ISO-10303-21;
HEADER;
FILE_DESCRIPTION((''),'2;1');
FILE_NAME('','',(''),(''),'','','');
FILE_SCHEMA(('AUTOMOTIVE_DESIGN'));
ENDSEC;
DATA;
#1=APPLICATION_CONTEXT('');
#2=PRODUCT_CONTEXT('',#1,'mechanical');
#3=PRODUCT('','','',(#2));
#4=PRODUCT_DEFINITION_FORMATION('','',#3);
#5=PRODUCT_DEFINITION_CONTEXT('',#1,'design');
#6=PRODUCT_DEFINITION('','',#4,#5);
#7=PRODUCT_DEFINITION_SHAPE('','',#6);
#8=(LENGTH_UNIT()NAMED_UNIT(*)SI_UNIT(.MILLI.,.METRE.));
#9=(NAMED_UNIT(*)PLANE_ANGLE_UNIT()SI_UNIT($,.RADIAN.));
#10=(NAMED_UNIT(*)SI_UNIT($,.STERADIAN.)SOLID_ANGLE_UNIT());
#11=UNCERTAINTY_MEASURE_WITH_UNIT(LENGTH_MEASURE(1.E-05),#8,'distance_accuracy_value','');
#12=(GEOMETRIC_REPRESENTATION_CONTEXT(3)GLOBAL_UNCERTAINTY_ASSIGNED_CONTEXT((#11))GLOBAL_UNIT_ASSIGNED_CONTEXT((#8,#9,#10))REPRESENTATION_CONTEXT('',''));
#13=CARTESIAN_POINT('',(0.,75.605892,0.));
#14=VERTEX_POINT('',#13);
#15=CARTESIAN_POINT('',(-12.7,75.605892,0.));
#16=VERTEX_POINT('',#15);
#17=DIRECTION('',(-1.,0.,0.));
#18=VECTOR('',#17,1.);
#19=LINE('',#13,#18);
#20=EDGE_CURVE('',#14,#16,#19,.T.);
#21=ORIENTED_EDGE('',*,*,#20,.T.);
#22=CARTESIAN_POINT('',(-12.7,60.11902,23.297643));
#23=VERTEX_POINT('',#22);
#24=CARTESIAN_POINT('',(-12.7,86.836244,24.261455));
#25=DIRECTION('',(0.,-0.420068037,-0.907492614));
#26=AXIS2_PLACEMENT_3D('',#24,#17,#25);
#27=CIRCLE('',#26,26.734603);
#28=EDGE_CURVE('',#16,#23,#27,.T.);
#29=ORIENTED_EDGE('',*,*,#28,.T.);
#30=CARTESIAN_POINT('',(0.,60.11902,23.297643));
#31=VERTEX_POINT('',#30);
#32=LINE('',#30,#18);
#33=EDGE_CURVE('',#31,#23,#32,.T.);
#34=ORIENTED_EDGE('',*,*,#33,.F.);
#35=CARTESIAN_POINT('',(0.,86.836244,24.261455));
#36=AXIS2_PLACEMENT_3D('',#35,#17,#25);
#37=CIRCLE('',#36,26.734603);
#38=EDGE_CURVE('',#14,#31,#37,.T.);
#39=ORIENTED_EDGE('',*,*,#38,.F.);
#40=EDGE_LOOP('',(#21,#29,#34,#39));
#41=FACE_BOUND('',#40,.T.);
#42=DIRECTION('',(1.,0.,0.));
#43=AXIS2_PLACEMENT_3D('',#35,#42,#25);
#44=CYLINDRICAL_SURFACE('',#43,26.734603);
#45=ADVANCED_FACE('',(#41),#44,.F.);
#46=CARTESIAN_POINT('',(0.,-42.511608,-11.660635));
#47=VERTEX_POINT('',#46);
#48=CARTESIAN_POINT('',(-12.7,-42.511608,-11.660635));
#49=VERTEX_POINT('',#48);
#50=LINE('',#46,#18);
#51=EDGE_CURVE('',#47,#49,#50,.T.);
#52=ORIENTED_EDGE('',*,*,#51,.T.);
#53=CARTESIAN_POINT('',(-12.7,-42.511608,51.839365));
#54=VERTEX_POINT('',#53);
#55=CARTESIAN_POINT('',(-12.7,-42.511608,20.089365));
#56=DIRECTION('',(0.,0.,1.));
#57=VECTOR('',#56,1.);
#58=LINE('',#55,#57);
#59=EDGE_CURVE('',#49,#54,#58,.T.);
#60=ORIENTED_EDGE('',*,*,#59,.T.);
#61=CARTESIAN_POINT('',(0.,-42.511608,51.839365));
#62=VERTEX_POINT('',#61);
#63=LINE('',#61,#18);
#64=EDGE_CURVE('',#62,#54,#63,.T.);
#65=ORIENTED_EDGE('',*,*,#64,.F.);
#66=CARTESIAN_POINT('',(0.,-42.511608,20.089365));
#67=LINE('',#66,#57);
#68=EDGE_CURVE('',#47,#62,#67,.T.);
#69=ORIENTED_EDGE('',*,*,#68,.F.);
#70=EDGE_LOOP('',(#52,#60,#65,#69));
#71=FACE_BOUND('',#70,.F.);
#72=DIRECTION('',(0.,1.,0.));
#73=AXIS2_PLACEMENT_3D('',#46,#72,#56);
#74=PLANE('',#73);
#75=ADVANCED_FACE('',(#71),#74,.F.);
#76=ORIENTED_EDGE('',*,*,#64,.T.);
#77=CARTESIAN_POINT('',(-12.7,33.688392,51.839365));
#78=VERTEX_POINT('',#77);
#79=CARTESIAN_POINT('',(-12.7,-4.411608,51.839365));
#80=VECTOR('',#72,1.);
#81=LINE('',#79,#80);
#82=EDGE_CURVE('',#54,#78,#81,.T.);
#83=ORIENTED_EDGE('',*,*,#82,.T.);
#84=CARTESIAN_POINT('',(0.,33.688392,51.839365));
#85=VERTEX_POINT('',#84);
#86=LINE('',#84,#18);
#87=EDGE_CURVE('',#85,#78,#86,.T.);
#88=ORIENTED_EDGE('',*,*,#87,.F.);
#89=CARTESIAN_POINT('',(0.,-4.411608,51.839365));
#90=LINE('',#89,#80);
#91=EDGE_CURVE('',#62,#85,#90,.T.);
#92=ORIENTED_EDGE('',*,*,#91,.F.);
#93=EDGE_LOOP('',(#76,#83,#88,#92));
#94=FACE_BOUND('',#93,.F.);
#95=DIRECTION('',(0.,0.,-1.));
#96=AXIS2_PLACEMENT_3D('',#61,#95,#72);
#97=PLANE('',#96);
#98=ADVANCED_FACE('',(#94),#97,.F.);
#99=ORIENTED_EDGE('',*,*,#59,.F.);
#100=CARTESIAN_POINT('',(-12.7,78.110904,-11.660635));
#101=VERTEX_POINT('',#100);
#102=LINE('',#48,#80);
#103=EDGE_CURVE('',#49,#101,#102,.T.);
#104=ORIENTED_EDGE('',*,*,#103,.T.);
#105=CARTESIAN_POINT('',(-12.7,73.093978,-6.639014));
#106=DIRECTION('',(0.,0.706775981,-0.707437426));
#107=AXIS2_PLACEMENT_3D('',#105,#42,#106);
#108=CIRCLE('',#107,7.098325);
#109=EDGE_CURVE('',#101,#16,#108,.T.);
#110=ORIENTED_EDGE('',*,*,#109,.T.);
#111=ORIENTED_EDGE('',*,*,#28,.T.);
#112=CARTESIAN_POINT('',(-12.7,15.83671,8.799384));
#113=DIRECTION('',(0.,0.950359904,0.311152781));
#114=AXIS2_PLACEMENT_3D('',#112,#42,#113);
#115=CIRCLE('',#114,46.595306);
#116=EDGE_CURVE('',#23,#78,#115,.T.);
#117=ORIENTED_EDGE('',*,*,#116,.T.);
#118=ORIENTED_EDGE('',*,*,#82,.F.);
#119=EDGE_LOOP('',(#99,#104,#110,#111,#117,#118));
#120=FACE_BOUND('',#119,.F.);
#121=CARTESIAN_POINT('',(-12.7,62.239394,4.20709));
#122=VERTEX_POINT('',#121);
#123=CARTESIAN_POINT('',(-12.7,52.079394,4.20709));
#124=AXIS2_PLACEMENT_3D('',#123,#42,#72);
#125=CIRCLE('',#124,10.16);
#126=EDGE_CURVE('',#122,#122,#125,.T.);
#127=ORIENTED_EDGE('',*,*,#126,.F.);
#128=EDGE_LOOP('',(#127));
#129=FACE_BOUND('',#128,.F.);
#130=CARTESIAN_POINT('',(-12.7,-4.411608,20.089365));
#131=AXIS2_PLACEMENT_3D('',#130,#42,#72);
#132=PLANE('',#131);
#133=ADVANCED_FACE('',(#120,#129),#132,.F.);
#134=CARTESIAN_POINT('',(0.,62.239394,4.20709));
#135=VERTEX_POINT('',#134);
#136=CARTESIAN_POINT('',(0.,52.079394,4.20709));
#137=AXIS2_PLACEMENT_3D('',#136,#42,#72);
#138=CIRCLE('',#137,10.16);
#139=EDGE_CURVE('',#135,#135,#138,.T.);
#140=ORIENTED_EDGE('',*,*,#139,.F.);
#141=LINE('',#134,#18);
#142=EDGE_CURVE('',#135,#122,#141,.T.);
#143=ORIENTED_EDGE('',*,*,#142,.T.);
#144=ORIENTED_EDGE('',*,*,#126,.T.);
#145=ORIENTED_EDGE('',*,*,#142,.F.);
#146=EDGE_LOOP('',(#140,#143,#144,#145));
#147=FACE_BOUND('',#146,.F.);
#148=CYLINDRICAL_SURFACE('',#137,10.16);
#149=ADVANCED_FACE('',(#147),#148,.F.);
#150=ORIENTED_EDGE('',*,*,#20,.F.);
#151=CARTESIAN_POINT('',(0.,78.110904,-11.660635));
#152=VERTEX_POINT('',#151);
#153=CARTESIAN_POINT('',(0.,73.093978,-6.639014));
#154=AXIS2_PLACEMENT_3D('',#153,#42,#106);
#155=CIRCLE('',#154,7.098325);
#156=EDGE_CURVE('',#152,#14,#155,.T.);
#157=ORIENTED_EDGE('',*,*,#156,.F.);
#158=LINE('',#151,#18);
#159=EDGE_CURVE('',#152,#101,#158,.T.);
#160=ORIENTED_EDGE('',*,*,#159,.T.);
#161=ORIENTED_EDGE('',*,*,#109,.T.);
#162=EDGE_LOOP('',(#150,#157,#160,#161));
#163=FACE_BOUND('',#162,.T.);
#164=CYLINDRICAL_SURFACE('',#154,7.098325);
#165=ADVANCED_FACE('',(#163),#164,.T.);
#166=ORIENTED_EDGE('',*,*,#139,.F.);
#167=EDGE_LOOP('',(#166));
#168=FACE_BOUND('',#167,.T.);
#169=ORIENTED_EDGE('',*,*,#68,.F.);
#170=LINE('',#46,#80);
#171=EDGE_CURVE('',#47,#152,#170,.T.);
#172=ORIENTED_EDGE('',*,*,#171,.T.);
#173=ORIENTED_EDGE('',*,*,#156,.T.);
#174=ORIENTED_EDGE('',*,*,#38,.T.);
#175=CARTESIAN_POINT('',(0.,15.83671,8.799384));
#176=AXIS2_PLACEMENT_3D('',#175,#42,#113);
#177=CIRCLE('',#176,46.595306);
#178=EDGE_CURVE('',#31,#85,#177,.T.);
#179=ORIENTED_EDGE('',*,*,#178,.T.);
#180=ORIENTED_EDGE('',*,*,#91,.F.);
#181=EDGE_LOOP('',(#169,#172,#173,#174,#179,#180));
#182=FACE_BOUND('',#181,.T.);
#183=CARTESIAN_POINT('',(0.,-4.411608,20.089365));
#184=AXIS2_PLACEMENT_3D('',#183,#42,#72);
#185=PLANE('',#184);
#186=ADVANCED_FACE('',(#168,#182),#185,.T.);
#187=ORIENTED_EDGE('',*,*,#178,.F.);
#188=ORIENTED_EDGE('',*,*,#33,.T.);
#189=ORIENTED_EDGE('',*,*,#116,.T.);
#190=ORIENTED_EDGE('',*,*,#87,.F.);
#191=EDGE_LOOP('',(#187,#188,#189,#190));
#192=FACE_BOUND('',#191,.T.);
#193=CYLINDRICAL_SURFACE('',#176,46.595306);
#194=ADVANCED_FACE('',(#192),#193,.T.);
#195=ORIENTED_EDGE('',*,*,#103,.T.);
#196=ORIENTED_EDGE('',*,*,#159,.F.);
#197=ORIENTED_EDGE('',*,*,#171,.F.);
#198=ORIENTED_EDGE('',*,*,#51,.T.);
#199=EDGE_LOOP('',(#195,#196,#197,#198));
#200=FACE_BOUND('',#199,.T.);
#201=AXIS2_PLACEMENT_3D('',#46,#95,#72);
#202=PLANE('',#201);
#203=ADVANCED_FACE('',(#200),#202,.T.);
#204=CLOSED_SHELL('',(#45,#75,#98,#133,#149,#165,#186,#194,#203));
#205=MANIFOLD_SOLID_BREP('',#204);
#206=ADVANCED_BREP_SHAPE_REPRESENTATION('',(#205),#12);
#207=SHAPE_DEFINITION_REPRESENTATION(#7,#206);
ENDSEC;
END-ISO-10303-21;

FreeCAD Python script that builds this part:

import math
import FreeCAD as App
import Part
import Sketcher
from FreeCAD import Vector
Q = App.Units.Quantity

doc = App.newDocument("Part")
body = doc.addObject("PartDesign::Body", "Body")

sketch1 = body.newObject("Sketcher::SketchObject", "Sketch")
sketch1.AttachmentSupport = (doc.getObject("YZ_Plane"), [""])
sketch1.MapMode = "FlatFace"
sketch1.addGeometry(Part.LineSegment(Vector(-42.511608, 51.839365, 0), Vector(-42.511608, -11.660635, 0)), False)
sketch1.addGeometry(Part.LineSegment(Vector(-42.511608, -11.660635, 0), Vector(78.110904, -11.660635, 0)), False)
sketch1.addGeometry(Part.ArcOfCircle(Part.Circle(Vector(73.093978, -6.639014, 0), Vector(0, 0, 1), 7.098325), math.radians(-45.026798), math.radians(69.275541)), False)
sketch1.addGeometry(Part.ArcOfCircle(Part.Circle(Vector(86.836244, 24.261455, 0), Vector(0, 0, 1), 26.734603), math.radians(-177.933976), math.radians(-114.838883)), False)
sketch1.addGeometry(Part.ArcOfCircle(Part.Circle(Vector(15.83671, 8.799384, 0), Vector(0, 0, 1), 46.595306), math.radians(18.128716), math.radians(67.472805)), False)
sketch1.addGeometry(Part.LineSegment(Vector(33.688392, 51.839365, 0), Vector(-42.511608, 51.839365, 0)), False)
sketch1.addGeometry(Part.Circle(Vector(52.079394, 4.20709, 0), Vector(0, 0, 1), 10.16), False)
sketch1.addConstraint(Sketcher.Constraint("Coincident", 0, 2, 1, 1))
sketch1.addConstraint(Sketcher.Constraint("Coincident", 1, 2, 2, 1))
sketch1.addConstraint(Sketcher.Constraint("Coincident", 2, 2, 3, 2))
sketch1.addConstraint(Sketcher.Constraint("Coincident", 3, 1, 4, 1))
sketch1.addConstraint(Sketcher.Constraint("Coincident", 4, 2, 5, 1))
sketch1.addConstraint(Sketcher.Constraint("Coincident", 5, 2, 0, 1))
sketch1.addConstraint(Sketcher.Constraint("Vertical", 0))
sketch1.addConstraint(Sketcher.Constraint("Horizontal", 1))
sketch1.addConstraint(Sketcher.Constraint("Horizontal", 5))
sketch1.addConstraint(Sketcher.Constraint("PointOnObject", 2, 2, -1))
sketch1.addConstraint(Sketcher.Constraint("Diameter", 6, Q("0.8 in")))
sketch1.addConstraint(Sketcher.Constraint("DistanceX", 5, 2, 5, 1, Q("3 in")))
sketch1.addConstraint(Sketcher.Constraint("DistanceY", 0, 2, 0, 1, Q("2.5 in")))
sketch1.addConstraint(Sketcher.Constraint("Radius", 2, 7.098325))
sketch1.addConstraint(Sketcher.Constraint("Radius", 3, 26.734603))
sketch1.addConstraint(Sketcher.Constraint("Radius", 4, 46.595306))
sketch1.addConstraint(Sketcher.Constraint("DistanceX", 1, 1, 1, 2, 120.622512))
sketch1.addConstraint(Sketcher.Constraint("DistanceY", 2, 3, 4, 3, 15.438398))
sketch1.addConstraint(Sketcher.Constraint("DistanceX", 6, 3, 2, 2, 23.526498))
sketch1.addConstraint(Sketcher.Constraint("DistanceX", 4, 2, 2, 2, 41.9175))
sketch1.addConstraint(Sketcher.Constraint("DistanceX", -1, 1, 2, 3, 73.093978))
sketch1.addConstraint(Sketcher.Constraint("DistanceX", -1, 1, 4, 3, 15.83671))
sketch1.addConstraint(Sketcher.Constraint("DistanceY", -1, 1, 6, 3, 4.20709))
sketch1.addConstraint(Sketcher.Constraint("DistanceX", -1, 1, 3, 1, 60.11902))
pad1 = body.newObject("PartDesign::Pad", "Pad")
pad1.Profile = sketch1
pad1.Length = Q("0.5 in")
pad1.Reversed = True

doc.recompute()
